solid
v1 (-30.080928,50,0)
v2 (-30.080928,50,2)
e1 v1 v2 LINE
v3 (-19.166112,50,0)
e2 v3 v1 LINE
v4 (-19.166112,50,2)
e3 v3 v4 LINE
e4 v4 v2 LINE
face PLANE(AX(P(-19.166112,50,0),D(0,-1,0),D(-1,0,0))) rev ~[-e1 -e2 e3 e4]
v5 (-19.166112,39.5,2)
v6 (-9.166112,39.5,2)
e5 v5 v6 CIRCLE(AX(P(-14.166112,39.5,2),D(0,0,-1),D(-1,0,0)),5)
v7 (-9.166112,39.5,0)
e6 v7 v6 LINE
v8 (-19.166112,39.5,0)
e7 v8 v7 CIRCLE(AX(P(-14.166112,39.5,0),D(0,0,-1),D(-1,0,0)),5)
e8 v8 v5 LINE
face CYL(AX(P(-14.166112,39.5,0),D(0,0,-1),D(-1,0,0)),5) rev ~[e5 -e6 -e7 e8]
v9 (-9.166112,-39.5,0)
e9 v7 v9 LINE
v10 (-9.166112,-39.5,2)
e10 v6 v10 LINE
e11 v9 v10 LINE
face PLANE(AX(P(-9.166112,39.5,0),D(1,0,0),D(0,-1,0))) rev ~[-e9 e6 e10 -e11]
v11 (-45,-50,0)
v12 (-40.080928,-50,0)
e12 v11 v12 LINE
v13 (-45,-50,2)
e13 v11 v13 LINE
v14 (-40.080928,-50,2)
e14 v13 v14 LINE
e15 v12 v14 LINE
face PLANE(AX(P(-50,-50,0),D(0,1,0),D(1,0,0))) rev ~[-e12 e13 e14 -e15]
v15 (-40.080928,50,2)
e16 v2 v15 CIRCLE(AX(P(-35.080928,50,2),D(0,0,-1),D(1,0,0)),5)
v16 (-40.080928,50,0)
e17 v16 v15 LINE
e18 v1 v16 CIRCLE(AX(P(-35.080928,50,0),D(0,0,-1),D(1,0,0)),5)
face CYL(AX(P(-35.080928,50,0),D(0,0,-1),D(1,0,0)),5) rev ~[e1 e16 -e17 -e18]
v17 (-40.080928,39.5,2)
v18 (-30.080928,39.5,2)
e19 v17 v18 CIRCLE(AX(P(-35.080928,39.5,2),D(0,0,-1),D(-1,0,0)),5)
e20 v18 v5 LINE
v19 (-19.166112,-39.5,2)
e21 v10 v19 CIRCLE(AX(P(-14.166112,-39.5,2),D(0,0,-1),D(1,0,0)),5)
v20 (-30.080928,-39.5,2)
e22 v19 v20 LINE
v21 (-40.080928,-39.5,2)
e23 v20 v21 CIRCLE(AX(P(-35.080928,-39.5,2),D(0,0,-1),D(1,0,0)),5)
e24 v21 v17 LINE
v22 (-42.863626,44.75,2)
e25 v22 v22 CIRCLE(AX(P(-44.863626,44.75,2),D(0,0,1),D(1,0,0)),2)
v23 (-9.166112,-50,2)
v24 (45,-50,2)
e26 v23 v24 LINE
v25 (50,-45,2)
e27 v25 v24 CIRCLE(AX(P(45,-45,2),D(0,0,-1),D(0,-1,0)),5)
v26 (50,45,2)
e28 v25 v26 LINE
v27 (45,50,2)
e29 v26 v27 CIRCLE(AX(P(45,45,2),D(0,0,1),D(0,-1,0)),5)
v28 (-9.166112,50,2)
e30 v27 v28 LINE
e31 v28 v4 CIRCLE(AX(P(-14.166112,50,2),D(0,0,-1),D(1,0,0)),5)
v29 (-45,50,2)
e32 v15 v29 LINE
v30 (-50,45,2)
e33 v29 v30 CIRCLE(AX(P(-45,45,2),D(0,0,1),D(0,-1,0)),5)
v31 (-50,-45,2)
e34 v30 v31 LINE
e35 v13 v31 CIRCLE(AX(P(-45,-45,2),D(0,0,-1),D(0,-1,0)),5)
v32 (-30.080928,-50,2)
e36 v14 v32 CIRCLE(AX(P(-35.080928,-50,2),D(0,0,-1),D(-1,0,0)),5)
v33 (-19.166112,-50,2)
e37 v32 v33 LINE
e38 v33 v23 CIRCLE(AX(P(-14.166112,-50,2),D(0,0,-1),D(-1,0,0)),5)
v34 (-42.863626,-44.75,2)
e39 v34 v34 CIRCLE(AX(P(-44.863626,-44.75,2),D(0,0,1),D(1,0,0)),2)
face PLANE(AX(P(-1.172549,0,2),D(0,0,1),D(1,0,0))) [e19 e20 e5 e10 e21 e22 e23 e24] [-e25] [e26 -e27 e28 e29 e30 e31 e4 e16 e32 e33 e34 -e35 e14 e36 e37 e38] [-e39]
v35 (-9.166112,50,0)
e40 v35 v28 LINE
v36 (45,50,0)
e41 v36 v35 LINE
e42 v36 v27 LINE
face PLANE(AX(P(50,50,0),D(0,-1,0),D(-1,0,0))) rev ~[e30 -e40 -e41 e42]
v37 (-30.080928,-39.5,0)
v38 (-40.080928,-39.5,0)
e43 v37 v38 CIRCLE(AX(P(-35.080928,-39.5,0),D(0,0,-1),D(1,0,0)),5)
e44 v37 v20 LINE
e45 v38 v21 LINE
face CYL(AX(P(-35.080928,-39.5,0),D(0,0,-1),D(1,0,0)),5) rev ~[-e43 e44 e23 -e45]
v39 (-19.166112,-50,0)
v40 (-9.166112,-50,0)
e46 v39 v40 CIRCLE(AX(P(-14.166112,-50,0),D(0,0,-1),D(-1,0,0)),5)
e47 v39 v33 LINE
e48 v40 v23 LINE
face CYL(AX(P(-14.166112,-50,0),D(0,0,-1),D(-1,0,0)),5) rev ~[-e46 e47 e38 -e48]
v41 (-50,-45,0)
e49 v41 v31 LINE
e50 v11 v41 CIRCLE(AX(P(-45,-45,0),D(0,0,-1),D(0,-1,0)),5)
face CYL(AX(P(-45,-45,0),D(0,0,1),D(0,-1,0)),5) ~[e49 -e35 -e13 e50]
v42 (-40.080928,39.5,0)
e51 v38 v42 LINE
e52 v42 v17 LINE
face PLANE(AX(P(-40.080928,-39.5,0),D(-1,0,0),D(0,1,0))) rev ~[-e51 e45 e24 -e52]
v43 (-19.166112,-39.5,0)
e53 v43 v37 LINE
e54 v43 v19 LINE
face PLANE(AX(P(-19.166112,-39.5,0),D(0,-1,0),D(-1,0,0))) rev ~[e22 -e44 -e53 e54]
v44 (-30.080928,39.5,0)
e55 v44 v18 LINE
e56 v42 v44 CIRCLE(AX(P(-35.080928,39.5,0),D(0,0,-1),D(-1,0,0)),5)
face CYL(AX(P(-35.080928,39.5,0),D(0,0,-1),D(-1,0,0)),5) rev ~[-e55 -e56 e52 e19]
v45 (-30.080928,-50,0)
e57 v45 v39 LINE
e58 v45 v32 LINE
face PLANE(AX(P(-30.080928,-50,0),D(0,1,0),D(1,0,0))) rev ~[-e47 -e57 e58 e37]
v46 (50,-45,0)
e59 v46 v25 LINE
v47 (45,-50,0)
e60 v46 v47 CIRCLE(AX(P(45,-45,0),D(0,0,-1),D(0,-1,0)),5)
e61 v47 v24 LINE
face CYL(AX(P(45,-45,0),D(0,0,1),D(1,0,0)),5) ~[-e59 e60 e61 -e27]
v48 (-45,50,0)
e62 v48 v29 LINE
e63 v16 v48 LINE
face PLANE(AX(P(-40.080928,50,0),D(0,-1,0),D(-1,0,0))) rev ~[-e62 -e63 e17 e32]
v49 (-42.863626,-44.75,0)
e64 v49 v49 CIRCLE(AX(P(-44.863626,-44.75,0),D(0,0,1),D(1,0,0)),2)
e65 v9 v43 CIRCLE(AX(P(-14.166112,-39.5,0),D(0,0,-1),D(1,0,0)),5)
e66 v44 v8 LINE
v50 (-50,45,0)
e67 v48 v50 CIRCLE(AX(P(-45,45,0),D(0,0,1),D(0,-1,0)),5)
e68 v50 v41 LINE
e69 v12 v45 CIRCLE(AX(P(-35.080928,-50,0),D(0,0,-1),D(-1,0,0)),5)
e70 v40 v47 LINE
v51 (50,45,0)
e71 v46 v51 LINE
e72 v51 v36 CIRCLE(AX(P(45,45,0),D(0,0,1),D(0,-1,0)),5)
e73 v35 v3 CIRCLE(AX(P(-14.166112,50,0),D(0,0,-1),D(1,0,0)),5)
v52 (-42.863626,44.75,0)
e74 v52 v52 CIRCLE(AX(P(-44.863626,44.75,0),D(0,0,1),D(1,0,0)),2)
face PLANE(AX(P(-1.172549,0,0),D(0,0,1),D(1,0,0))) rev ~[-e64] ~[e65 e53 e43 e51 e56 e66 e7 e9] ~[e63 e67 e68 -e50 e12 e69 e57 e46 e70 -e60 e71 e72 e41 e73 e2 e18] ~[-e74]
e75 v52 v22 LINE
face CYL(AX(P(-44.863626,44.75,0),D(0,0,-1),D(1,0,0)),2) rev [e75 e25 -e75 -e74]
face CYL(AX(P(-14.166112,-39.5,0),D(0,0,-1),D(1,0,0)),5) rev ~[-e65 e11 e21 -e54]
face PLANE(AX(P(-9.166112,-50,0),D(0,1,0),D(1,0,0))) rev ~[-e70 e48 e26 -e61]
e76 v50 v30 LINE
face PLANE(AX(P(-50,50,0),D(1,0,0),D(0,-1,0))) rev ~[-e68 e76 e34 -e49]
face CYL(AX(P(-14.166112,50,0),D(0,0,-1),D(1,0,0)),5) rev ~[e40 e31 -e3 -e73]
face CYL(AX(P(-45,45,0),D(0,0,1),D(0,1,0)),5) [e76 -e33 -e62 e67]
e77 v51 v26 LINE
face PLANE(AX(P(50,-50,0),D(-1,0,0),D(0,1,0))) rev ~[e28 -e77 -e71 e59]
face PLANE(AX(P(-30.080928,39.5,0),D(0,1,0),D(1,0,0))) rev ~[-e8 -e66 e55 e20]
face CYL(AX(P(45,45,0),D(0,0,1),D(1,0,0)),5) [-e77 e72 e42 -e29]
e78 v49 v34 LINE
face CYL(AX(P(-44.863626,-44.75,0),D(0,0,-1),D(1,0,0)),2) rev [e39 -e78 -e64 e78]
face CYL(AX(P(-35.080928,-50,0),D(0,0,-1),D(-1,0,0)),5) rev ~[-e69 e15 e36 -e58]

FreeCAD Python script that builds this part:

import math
import FreeCAD as App
import Part
import Sketcher
from FreeCAD import Vector


def edges_at(feature, points):
    """Names of the edges that pass closest to the given points."""
    edges = feature.Shape.Edges
    near = lambda p: min(range(len(edges)), key=lambda i: edges[i].distToShape(Part.Vertex(*p))[0])
    return sorted({f"Edge{near(p) + 1}" for p in points})

doc = App.newDocument("Part")
body = doc.addObject("PartDesign::Body", "Body")

# Sketch on XY plane
sketch1 = doc.addObject("Sketcher::SketchObject", "Sketch")
body.addObject(sketch1)
sketch1.AttachmentSupport = (doc.XY_Plane, [""])
sketch1.MapMode = "FlatFace"
sketch1.addGeometry([
    Part.LineSegment(Vector(50, -50, 0), Vector(50, 50, 0)),  # 0
    Part.LineSegment(Vector(50, 50, 0), Vector(-9.166112, 50, 0)),  # 1
    Part.ArcOfCircle(Part.Circle(Vector(-14.166112, 50, 0), Vector(0, 0, 1), 5), math.radians(180), math.radians(360)),  # 2
    Part.LineSegment(Vector(-19.166112, 50, 0), Vector(-30.080928, 50, 0)),  # 3
    Part.ArcOfCircle(Part.Circle(Vector(-35.080928, 50, 0), Vector(0, 0, 1), 5), math.radians(180), math.radians(360)),  # 4
    Part.LineSegment(Vector(-40.080928, 50, 0), Vector(-50, 50, 0)),  # 5
    Part.LineSegment(Vector(-50, 50, 0), Vector(-50, -50, 0)),  # 6
    Part.LineSegment(Vector(-50, -50, 0), Vector(-40.080928, -50, 0)),  # 7
    Part.ArcOfCircle(Part.Circle(Vector(-35.080928, -50, 0), Vector(0, 0, 1), 5), math.radians(0), math.radians(180)),  # 8
    Part.LineSegment(Vector(-30.080928, -50, 0), Vector(-19.166112, -50, 0)),  # 9
    Part.ArcOfCircle(Part.Circle(Vector(-14.166112, -50, 0), Vector(0, 0, 1), 5), math.radians(0), math.radians(180)),  # 10
    Part.LineSegment(Vector(-9.166112, -50, 0), Vector(50, -50, 0)),  # 11
    Part.Circle(Vector(-44.863626, -44.75, 0), Vector(0, 0, 1), 2),  # 12
    Part.LineSegment(Vector(-40.080928, -39.5, 0), Vector(-40.080928, 39.5, 0)),  # 13
    Part.ArcOfCircle(Part.Circle(Vector(-35.080928, 39.5, 0), Vector(0, 0, 1), 5), math.radians(0), math.radians(180)),  # 14
    Part.LineSegment(Vector(-30.080928, 39.5, 0), Vector(-19.166112, 39.5, 0)),  # 15
    Part.ArcOfCircle(Part.Circle(Vector(-14.166112, 39.5, 0), Vector(0, 0, 1), 5), math.radians(0), math.radians(180)),  # 16
    Part.LineSegment(Vector(-9.166112, 39.5, 0), Vector(-9.166112, -39.5, 0)),  # 17
    Part.ArcOfCircle(Part.Circle(Vector(-14.166112, -39.5, 0), Vector(0, 0, 1), 5), math.radians(180), math.radians(360)),  # 18
    Part.LineSegment(Vector(-19.166112, -39.5, 0), Vector(-30.080928, -39.5, 0)),  # 19
    Part.ArcOfCircle(Part.Circle(Vector(-35.080928, -39.5, 0), Vector(0, 0, 1), 5), math.radians(180), math.radians(360)),  # 20
    Part.Circle(Vector(-44.863626, 44.75, 0), Vector(0, 0, 1), 2),  # 21
], False)
sketch1.addConstraint([
    Sketcher.Constraint("Coincident", 0, 2, 1, 1),
    Sketcher.Constraint("Coincident", 1, 2, 2, 2),
    Sketcher.Constraint("Coincident", 2, 1, 3, 1),
    Sketcher.Constraint("Coincident", 3, 2, 4, 2),
    Sketcher.Constraint("Coincident", 4, 1, 5, 1),
    Sketcher.Constraint("Coincident", 5, 2, 6, 1),
    Sketcher.Constraint("Coincident", 6, 2, 7, 1),
    Sketcher.Constraint("Coincident", 7, 2, 8, 2),
    Sketcher.Constraint("Coincident", 8, 1, 9, 1),
    Sketcher.Constraint("Coincident", 9, 2, 10, 2),
    Sketcher.Constraint("Coincident", 10, 1, 11, 1),
    Sketcher.Constraint("Coincident", 11, 2, 0, 1),
    Sketcher.Constraint("Tangent", 13, 2, 14, 2),
    Sketcher.Constraint("Coincident", 14, 1, 15, 1),
    Sketcher.Constraint("Coincident", 15, 2, 16, 2),
    Sketcher.Constraint("Tangent", 16, 1, 17, 1),
    Sketcher.Constraint("Tangent", 17, 2, 18, 2),
    Sketcher.Constraint("Coincident", 18, 1, 19, 1),
    Sketcher.Constraint("Coincident", 19, 2, 20, 2),
    Sketcher.Constraint("Tangent", 20, 1, 13, 1),
    Sketcher.Constraint("Vertical", 0),
    Sketcher.Constraint("Horizontal", 1),
    Sketcher.Constraint("Horizontal", 3),
    Sketcher.Constraint("Horizontal", 5),
    Sketcher.Constraint("Vertical", 6),
    Sketcher.Constraint("Horizontal", 7),
    Sketcher.Constraint("Horizontal", 9),
    Sketcher.Constraint("Horizontal", 11),
    Sketcher.Constraint("Vertical", 13),
    Sketcher.Constraint("Horizontal", 15),
    Sketcher.Constraint("Vertical", 17),
    Sketcher.Constraint("Horizontal", 19),
    Sketcher.Constraint("Equal", 2, 4),
    Sketcher.Constraint("Equal", 4, 8),
    Sketcher.Constraint("Equal", 8, 10),
    Sketcher.Constraint("Equal", 10, 14),
    Sketcher.Constraint("Equal", 14, 16),
    Sketcher.Constraint("Equal", 16, 18),
    Sketcher.Constraint("Equal", 18, 20),
    Sketcher.Constraint("Equal", 12, 21),
    Sketcher.Constraint("Symmetric", 0, 2, 6, 2, -1, 1),
    Sketcher.Constraint("Symmetric", 4, 3, 8, 3, -1),
    Sketcher.Constraint("Symmetric", 2, 3, 10, 3, -1),
    Sketcher.Constraint("Symmetric", 12, 3, 21, 3, -1),
    Sketcher.Constraint("Horizontal", 2, 3, 4, 3),
    Sketcher.Constraint("Horizontal", 14, 3, 16, 3),
    Sketcher.Constraint("Horizontal", 18, 3, 20, 3),
    Sketcher.Constraint("Horizontal", 4, 3, 0, 2),
    Sketcher.Constraint("Horizontal", 1, 2, 2, 1),
    Sketcher.Constraint("Horizontal", 3, 2, 4, 1),
    Sketcher.Constraint("Horizontal", 7, 2, 8, 1),
    Sketcher.Constraint("Horizontal", 9, 2, 10, 1),
    Sketcher.Constraint("Horizontal", 13, 2, 14, 1),
    Sketcher.Constraint("Horizontal", 17, 2, 18, 1),
    Sketcher.Constraint("Vertical", 8, 3, 14, 3),
    Sketcher.Constraint("Vertical", 10, 3, 16, 3),
    Sketcher.Constraint("Diameter", 12, 4.0),
    Sketcher.Constraint("Radius", 2, 5.0),
    Sketcher.Constraint("DistanceY", 0, 1, 0, 2, 100.0),
    Sketcher.Constraint("DistanceY", 13, 1, 13, 2, 79.0),
    Sketcher.Constraint("DistanceX", -1, 1, 0, 2, 50.0),
    Sketcher.Constraint("DistanceY", -1, 1, 14, 3, 39.5),
    Sketcher.Constraint("DistanceY", 12, 3, -1, 1, 44.75),
    Sketcher.Constraint("DistanceX", 1, 2, 1, 1, 59.166112),
    Sketcher.Constraint("DistanceX", 3, 2, 3, 1, 10.914816),
    Sketcher.Constraint("DistanceX", 12, 3, -1, 1, 44.863626),
])
pad1 = doc.addObject("PartDesign::Pad", "Pad")
body.addObject(pad1)
pad1.Profile = sketch1
pad1.Length = 2
doc.recompute()

fillet = doc.addObject("PartDesign::Fillet", "Fillet")
body.addObject(fillet)
fillet.Base = (pad1, edges_at(pad1, [
    (50, -50, 1),
    (50, 50, 1),
    (-50, -50, 1),
    (-50, 50, 1),
]))
fillet.Radius = 5

doc.recompute()
